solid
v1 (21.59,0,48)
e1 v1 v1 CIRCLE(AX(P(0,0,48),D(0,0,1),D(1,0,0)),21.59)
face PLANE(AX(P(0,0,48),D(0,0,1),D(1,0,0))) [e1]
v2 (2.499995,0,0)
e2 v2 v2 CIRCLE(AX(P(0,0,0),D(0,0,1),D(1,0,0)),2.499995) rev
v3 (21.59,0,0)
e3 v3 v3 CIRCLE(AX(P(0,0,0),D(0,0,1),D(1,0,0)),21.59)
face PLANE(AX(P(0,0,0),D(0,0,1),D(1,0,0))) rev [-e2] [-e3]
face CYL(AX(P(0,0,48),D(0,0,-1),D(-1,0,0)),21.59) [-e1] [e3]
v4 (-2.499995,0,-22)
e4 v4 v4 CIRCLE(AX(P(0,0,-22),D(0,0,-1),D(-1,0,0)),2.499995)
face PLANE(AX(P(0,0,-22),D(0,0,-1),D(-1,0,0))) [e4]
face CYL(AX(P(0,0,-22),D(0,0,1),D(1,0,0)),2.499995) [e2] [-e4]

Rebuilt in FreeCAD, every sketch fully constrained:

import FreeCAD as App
import Part
import Sketcher

V = App.Vector
Q = App.Units.Quantity

doc = App.newDocument("Part")
body = doc.addObject("PartDesign::Body", "Body")

# Sketch on XY plane
sketch1 = body.newObject("Sketcher::SketchObject", "Sketch")
sketch1.AttachmentSupport = (doc.getObject("XY_Plane"), [""])
sketch1.MapMode = "FlatFace"
sketch1.addGeometry(Part.Circle(V(0, 0, 0), V(0, 0, 1), 22), False)
sketch1.addConstraint([
    Sketcher.Constraint("Coincident", 0, 3, -1, 1),
    Sketcher.Constraint("Diameter", 0, Q("43.18 mm")),
])
pad1 = body.newObject("PartDesign::Pad", "Pad")
pad1.Profile = sketch1
pad1.Length = 48

# Sketch on XY plane
sketch2 = body.newObject("Sketcher::SketchObject", "Sketch001")
sketch2.AttachmentSupport = (doc.getObject("XY_Plane"), [""])
sketch2.MapMode = "FlatFace"
sketch2.addGeometry(Part.Circle(V(0, 0, 0), V(0, 0, 1), 2.5), False)
sketch2.addConstraint([
    Sketcher.Constraint("Coincident", 0, 3, -1, 1),
    Sketcher.Constraint("Diameter", 0, Q("4.99999 mm")),
])
pad2 = body.newObject("PartDesign::Pad", "Pad001")
pad2.Profile = sketch2
pad2.Length = 22
pad2.Reversed = True

doc.recompute()
